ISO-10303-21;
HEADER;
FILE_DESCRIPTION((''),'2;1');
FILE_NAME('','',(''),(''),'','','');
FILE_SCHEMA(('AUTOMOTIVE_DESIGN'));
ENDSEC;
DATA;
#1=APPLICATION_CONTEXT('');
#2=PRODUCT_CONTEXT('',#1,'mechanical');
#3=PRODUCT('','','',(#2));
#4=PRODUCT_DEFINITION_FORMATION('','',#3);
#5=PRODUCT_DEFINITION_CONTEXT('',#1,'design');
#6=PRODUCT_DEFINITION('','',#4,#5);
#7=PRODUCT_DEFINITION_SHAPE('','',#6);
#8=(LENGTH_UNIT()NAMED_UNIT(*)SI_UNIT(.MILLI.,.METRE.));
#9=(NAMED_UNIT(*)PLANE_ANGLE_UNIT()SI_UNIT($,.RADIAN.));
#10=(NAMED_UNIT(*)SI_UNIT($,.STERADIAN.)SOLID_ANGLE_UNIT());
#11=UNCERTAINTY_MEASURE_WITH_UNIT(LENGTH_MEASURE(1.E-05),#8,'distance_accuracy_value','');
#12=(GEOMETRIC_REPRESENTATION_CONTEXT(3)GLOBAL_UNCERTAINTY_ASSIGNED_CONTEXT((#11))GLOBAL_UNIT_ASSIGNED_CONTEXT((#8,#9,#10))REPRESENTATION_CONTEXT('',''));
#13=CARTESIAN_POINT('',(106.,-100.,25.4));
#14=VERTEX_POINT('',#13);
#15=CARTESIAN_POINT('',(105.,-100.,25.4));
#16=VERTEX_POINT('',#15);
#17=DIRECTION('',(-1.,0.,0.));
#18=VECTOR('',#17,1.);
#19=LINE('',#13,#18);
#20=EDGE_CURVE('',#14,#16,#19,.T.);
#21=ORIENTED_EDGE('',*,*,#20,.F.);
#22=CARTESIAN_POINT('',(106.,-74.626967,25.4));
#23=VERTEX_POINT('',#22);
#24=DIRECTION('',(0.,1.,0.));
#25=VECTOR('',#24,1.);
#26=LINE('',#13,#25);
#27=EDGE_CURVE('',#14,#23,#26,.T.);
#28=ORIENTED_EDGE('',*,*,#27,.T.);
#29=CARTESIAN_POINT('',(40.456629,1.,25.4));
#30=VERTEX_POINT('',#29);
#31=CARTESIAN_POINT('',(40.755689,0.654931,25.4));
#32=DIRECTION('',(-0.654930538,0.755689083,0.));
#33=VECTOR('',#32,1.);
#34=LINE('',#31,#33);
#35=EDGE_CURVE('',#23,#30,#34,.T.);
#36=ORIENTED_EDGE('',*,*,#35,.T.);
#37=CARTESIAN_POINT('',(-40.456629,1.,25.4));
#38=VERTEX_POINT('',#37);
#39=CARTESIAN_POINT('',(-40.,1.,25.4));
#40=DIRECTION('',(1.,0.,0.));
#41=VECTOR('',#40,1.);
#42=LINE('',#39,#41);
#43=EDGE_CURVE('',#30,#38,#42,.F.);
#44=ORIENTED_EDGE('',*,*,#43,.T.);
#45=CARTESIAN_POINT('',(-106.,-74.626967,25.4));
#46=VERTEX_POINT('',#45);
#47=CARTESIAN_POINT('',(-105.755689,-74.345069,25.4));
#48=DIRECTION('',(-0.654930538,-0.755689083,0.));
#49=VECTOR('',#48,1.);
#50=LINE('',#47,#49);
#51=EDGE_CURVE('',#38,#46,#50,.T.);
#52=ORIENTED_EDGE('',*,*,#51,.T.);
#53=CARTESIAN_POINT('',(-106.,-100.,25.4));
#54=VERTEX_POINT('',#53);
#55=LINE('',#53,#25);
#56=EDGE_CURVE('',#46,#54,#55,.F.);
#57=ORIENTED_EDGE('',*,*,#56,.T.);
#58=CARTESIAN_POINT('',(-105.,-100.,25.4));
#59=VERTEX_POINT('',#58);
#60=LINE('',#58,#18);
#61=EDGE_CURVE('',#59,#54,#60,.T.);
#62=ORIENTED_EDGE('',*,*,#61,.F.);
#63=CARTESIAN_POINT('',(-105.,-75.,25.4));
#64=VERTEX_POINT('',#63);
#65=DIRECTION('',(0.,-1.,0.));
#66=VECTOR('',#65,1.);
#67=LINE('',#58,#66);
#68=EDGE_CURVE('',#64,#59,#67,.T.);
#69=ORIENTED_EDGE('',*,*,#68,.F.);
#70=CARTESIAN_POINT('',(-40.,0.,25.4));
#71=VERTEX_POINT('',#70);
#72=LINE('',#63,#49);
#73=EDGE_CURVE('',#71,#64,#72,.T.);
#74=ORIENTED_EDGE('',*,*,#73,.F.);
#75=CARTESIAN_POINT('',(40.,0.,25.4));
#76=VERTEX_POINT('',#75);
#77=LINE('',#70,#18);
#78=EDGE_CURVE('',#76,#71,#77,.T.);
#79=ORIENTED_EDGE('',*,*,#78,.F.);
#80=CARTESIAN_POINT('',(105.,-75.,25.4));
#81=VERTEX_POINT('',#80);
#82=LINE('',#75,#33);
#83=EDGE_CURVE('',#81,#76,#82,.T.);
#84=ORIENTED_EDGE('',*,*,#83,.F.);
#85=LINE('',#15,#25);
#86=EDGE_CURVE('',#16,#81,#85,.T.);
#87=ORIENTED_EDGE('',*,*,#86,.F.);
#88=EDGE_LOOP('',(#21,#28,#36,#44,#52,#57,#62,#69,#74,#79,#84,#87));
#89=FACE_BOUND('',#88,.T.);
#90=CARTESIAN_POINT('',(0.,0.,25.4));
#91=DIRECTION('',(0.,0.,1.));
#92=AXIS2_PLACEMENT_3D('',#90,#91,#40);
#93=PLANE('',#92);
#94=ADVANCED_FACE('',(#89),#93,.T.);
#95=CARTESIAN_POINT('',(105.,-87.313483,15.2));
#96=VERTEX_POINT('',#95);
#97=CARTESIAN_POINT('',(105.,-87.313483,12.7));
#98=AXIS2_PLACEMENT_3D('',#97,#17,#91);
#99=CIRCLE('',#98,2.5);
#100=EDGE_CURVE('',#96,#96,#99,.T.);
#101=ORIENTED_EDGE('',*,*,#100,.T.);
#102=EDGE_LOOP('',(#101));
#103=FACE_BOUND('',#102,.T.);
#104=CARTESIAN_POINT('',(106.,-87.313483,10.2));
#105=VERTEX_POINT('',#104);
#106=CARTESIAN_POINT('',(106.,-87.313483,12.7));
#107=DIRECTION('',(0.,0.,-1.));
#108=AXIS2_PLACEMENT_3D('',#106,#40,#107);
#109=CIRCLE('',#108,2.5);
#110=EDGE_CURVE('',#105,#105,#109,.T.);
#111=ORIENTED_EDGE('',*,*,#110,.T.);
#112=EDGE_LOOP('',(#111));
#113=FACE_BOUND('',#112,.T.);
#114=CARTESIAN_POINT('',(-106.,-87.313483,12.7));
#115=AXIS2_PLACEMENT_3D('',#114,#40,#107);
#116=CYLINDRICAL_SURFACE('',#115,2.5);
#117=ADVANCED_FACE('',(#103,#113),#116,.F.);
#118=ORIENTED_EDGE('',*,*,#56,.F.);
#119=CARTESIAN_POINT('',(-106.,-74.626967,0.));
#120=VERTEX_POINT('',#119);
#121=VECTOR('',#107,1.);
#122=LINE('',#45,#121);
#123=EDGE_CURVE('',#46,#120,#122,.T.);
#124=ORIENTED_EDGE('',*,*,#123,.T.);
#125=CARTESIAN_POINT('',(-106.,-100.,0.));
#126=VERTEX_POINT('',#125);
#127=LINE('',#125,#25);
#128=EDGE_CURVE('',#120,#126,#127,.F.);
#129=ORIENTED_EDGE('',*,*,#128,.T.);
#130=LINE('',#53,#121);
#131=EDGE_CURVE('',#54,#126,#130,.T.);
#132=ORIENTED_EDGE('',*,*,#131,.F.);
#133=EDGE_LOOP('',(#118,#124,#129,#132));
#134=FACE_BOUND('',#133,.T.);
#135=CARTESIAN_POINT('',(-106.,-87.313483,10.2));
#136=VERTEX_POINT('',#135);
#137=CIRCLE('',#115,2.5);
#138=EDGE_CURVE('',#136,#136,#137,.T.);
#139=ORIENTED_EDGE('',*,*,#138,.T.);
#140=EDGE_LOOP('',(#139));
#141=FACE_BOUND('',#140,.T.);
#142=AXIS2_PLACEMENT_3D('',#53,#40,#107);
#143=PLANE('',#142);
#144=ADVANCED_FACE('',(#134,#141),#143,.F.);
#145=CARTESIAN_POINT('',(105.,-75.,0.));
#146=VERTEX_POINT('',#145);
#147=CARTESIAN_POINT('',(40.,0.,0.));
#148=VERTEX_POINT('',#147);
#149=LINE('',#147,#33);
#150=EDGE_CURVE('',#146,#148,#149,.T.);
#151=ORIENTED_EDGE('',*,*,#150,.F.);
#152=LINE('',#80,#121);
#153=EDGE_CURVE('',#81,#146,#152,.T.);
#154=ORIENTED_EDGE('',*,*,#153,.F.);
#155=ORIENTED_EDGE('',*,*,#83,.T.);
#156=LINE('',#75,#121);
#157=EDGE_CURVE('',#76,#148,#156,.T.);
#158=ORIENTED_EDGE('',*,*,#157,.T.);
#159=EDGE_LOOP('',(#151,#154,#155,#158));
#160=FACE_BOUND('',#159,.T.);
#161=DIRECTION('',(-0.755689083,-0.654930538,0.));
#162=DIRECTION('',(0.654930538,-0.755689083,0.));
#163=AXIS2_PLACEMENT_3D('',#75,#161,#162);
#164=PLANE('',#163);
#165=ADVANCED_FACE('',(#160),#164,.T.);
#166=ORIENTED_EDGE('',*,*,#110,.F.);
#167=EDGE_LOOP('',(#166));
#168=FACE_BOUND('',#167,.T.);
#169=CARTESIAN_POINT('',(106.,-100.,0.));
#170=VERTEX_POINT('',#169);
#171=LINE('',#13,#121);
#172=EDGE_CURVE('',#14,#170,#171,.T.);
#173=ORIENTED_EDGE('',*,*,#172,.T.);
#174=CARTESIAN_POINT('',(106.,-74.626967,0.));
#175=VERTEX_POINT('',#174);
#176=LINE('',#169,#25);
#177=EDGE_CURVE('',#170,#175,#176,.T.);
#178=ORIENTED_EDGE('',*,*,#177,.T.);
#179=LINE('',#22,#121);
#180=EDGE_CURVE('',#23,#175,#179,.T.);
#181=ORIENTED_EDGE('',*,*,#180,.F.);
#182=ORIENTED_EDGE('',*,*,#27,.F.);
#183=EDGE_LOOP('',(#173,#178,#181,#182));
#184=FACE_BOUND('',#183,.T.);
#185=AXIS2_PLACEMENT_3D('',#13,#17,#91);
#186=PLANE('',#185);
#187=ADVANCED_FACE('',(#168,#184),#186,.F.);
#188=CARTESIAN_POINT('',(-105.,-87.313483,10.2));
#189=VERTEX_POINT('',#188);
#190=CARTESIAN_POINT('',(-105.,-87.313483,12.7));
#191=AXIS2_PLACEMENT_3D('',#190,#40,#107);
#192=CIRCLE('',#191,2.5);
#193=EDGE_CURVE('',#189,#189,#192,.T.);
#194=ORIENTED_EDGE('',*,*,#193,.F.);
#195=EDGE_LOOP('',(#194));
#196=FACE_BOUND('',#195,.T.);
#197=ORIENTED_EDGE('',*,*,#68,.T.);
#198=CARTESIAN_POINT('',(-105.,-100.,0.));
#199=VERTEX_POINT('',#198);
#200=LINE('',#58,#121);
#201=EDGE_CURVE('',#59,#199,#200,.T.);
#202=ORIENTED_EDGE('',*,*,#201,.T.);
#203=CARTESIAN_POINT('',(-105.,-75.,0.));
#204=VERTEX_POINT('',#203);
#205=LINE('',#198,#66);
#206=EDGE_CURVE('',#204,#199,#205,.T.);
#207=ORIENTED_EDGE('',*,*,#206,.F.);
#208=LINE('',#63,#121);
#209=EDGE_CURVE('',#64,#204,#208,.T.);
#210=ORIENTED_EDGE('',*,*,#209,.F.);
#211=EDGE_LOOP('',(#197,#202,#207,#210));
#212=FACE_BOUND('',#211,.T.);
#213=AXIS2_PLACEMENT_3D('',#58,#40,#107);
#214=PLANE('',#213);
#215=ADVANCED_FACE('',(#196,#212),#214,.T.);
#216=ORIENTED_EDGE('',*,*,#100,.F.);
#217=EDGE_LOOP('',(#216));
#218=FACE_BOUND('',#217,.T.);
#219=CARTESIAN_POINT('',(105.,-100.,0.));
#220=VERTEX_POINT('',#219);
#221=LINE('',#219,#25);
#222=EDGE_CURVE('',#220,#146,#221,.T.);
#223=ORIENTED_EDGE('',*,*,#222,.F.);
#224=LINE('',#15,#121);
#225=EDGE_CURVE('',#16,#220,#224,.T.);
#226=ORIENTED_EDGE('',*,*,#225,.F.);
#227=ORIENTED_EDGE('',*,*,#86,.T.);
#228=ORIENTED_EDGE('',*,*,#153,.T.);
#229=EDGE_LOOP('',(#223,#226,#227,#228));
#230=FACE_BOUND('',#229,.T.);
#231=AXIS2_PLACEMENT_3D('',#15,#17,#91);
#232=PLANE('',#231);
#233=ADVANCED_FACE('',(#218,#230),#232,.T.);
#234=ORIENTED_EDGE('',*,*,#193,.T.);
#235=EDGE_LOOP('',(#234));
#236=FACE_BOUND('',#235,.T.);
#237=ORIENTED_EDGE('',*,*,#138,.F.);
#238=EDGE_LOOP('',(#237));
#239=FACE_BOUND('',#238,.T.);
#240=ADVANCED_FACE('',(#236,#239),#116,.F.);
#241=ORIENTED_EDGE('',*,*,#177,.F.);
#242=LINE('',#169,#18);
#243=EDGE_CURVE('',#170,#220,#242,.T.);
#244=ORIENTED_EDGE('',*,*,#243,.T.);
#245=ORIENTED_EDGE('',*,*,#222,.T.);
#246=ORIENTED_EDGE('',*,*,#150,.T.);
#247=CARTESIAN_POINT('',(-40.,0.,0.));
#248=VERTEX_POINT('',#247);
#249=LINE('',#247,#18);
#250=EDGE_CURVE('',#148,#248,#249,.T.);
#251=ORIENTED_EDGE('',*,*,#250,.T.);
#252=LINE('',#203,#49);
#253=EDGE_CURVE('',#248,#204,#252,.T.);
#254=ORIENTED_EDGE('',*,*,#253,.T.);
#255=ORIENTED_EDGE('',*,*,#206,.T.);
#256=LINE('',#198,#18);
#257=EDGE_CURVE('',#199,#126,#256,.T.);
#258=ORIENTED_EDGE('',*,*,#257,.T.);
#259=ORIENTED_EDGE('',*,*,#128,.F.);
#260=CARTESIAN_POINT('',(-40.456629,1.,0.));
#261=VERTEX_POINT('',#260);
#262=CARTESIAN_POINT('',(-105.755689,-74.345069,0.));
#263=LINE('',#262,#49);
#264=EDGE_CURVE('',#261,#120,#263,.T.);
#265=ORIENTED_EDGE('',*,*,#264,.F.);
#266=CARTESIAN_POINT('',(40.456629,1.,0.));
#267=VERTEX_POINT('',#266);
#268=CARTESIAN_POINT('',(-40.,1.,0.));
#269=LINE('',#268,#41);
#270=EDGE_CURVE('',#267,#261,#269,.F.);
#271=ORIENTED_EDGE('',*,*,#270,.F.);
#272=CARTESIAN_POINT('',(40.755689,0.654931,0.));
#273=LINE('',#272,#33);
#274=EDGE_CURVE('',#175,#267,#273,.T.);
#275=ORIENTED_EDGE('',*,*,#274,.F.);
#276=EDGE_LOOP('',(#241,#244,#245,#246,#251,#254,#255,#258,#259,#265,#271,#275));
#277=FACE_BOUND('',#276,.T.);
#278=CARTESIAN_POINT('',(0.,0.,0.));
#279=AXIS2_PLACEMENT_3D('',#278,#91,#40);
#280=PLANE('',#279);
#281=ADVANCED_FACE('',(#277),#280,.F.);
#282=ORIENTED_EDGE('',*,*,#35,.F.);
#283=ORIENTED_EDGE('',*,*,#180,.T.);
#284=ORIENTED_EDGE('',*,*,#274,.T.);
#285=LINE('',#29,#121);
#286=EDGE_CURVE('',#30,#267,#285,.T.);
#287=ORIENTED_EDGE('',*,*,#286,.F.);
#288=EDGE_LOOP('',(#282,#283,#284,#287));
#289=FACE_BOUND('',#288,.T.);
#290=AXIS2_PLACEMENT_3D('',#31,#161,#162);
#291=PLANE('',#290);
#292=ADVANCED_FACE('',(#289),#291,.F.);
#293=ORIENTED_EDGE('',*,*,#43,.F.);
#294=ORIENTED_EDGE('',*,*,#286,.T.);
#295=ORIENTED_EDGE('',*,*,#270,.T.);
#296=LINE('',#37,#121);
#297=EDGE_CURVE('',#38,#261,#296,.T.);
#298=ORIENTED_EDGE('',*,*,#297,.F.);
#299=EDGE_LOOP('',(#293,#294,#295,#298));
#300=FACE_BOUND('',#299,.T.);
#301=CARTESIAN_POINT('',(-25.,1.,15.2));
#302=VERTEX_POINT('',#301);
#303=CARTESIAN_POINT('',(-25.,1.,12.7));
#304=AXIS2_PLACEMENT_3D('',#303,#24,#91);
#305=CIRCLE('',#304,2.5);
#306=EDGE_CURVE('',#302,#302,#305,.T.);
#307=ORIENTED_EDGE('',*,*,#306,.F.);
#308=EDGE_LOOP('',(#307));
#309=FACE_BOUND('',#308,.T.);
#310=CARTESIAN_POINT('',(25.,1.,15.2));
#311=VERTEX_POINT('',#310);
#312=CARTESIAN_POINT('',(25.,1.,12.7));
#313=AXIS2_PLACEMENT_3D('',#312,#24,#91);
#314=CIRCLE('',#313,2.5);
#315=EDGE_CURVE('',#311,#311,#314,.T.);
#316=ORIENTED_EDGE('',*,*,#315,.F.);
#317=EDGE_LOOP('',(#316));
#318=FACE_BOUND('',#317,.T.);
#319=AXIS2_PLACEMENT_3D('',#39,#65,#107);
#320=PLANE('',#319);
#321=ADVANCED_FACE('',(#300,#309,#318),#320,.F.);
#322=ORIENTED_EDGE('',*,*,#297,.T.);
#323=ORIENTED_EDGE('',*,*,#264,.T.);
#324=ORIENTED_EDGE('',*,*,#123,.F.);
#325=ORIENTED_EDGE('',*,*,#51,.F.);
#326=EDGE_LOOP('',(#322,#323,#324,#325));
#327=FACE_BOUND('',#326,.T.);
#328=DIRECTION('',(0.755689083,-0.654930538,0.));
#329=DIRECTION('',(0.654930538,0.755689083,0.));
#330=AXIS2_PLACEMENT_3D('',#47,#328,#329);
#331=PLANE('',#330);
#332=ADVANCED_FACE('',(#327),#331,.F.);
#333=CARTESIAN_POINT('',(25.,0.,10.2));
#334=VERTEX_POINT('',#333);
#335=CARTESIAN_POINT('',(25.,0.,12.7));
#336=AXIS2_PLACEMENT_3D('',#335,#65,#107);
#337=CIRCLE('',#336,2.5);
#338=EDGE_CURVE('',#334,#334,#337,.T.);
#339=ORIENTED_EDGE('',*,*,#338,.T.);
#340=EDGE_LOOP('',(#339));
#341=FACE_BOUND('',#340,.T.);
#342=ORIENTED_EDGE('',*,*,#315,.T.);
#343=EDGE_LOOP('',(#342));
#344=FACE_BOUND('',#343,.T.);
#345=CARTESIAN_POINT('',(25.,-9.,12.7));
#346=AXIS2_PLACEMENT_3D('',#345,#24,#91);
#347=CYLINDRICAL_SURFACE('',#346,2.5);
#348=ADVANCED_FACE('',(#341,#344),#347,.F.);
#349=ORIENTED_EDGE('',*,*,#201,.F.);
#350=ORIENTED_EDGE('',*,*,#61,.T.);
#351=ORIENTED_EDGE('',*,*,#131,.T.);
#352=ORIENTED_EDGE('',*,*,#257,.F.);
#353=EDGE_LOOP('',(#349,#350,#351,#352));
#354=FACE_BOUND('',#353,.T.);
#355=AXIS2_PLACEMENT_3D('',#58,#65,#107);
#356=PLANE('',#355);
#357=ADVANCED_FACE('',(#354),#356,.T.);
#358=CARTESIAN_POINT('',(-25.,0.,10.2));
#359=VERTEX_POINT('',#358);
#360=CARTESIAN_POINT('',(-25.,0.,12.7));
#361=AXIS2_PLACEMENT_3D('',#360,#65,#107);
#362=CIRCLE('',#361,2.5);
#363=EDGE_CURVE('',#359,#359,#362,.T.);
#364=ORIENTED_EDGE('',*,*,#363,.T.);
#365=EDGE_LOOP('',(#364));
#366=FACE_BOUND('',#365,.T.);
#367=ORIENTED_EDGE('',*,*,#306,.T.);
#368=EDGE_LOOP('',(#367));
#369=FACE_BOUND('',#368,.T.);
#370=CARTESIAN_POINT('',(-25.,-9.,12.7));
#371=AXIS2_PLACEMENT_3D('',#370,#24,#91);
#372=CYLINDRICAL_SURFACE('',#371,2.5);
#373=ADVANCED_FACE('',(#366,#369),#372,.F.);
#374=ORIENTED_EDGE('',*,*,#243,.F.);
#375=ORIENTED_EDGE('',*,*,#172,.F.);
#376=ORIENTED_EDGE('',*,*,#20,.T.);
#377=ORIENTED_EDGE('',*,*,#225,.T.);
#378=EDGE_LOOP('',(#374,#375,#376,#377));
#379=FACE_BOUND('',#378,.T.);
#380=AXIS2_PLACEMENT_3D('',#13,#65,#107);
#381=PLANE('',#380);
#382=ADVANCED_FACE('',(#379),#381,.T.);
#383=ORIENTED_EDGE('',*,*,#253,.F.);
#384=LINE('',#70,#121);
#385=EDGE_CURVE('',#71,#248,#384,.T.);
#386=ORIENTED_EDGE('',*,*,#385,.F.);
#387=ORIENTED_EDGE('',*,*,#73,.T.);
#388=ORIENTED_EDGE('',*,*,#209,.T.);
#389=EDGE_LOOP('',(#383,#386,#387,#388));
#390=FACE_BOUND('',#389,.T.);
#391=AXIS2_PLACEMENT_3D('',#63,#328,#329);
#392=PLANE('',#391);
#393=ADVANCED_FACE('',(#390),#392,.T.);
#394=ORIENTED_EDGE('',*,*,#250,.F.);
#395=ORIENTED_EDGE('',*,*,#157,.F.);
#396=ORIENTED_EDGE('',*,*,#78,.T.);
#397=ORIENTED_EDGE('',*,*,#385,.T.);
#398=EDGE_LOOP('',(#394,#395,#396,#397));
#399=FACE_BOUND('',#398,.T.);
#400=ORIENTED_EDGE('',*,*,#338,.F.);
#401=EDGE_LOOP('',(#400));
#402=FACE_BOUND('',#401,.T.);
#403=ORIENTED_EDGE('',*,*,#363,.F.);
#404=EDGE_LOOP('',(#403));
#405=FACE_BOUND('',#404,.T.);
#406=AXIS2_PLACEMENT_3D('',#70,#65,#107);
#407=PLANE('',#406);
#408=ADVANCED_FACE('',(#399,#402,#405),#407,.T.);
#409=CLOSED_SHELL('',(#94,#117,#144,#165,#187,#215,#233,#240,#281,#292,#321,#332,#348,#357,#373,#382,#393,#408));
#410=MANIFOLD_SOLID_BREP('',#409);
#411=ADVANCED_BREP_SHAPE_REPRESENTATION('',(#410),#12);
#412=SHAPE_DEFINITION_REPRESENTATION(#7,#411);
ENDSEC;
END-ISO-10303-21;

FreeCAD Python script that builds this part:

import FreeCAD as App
import Part
import Sketcher

V = App.Vector
Q = App.Units.Quantity


def add_polygon(sketch, points):
    """Adds a closed chain of lines whose ends are joined by coincident constraints."""
    first, n = sketch.GeometryCount, len(points)
    for a, b in zip(points, points[1:] + points[:1]):
        sketch.addGeometry(Part.LineSegment(App.Vector(*a, 0), App.Vector(*b, 0)), False)
    for i in range(n):
        sketch.addConstraint(Sketcher.Constraint("Coincident", first + i, 2, first + (i + 1) % n, 1))

doc = App.newDocument("Part")
params = doc.addObject("Spreadsheet::Sheet", "Params")
for row, (alias, value) in enumerate([
    ("sketch1_width", "80 mm"),
    ("sketch1_width2", "1 mm"),
    ("sketch1_height", "25 mm"),
    ("pad1_length", "25.4 mm"),
    ("sketch2_diameter", "5 mm"),
    ("pocket1_length", "10 mm"),
    ("sketch3_diameter", "5 mm"),
], start=1):
    params.set(f"A{row}", alias)
    params.set(f"B{row}", "=" + value)
    params.setAlias(f"B{row}", alias)

body = doc.addObject("PartDesign::Body", "Body")

sketch1 = body.newObject("Sketcher::SketchObject", "Sketch")
sketch1.AttachmentSupport = (doc.getObject("XY_Plane"), [""])
sketch1.MapMode = "FlatFace"
add_polygon(sketch1, [(-105, -100), (-105, -75), (-40, 0), (40, 0), (105, -75), (105, -100), (106, -100), (106, -74.6), (40.5, 1), (-40.5, 1), (-106, -74.6), (-106, -100)])
sketch1.addConstraint([
    Sketcher.Constraint("Vertical", 0),
    Sketcher.Constraint("Horizontal", 2),
    Sketcher.Constraint("Vertical", 4),
    Sketcher.Constraint("Horizontal", 5),
    Sketcher.Constraint("Vertical", 6),
    Sketcher.Constraint("Horizontal", 8),
    Sketcher.Constraint("Vertical", 10),
    Sketcher.Constraint("Horizontal", 11),
    Sketcher.Constraint("Symmetric", 1, 2, 2, 2, -1, 1),
    Sketcher.Constraint("Symmetric", 0, 2, 3, 2, -2),
    Sketcher.Constraint("Symmetric", 6, 2, 9, 2, -2),
    Sketcher.Constraint("Parallel", 3, 7),
    Sketcher.Constraint("Parallel", 1, 9),
    Sketcher.Constraint("Horizontal", 5, 2, 10, 2),
    Sketcher.Constraint("DistanceX", 2, 1, 2, 2, Q("80 mm")),
    Sketcher.Constraint("DistanceX", 5, 1, 5, 2, Q("1 mm")),
    Sketcher.Constraint("DistanceY", 0, 1, 0, 2, Q("25 mm")),
    Sketcher.Constraint("DistanceX", 0, 2, -1, 1, Q("105 mm")),
    Sketcher.Constraint("DistanceY", 0, 2, -1, 1, Q("75 mm")),
    Sketcher.Constraint("DistanceY", -1, 1, 7, 2, Q("1 mm")),
    Sketcher.Constraint("Distance", 7, Q("100.076828 mm")),
])
sketch1.setExpression("Constraints[26]", "Params.sketch1_width")
sketch1.setExpression("Constraints[27]", "Params.sketch1_width2")
sketch1.setExpression("Constraints[28]", "Params.sketch1_height")
pad1 = body.newObject("PartDesign::Pad", "Pad")
pad1.Profile = sketch1
pad1.setExpression("Length", "Params.pad1_length")

sketch2 = body.newObject("Sketcher::SketchObject", "Sketch001")
sketch2.AttachmentSupport = (doc.getObject("XZ_Plane"), [""])
sketch2.MapMode = "FlatFace"
sketch2.AttachmentOffset = App.Placement(V(0, 0, -1), App.Rotation())
sketch2.addGeometry([
    Part.Circle(V(-25, 12.7, 0), V(0, 0, 1), 2.5),
    Part.Circle(V(25, 12.7, 0), V(0, 0, 1), 2.5),
], False)
sketch2.addConstraint([
    Sketcher.Constraint("Equal", 0, 1),
    Sketcher.Constraint("Symmetric", 0, 3, 1, 3, -2),
    Sketcher.Constraint("Diameter", 0, Q("5 mm")),
    Sketcher.Constraint("DistanceX", 0, 3, -1, 1, Q("25 mm")),
    Sketcher.Constraint("DistanceY", -1, 1, 0, 3, Q("12.7 mm")),
])
sketch2.setExpression("Constraints[2]", "Params.sketch2_diameter")
pocket1 = body.newObject("PartDesign::Pocket", "Pocket")
pocket1.Profile = sketch2
pocket1.setExpression("Length", "Params.pocket1_length")
pocket1.Reversed = True

sketch3 = body.newObject("Sketcher::SketchObject", "Sketch002")
sketch3.AttachmentSupport = (doc.getObject("YZ_Plane"), [""])
sketch3.MapMode = "FlatFace"
sketch3.addGeometry(Part.Circle(V(-87.3, 12.7, 0), V(0, 0, 1), 2.5), False)
sketch3.addConstraint([
    Sketcher.Constraint("Diameter", 0, Q("5 mm")),
    Sketcher.Constraint("DistanceY", -1, 1, 0, 3, Q("12.7 mm")),
    Sketcher.Constraint("DistanceX", 0, 3, -1, 1, Q("87.313483 mm")),
])
sketch3.setExpression("Constraints[0]", "Params.sketch3_diameter")
pocket2 = body.newObject("PartDesign::Pocket", "Pocket001")
pocket2.Profile = sketch3
pocket2.Type = "ThroughAll"
pocket2.Midplane = True

doc.recompute()
